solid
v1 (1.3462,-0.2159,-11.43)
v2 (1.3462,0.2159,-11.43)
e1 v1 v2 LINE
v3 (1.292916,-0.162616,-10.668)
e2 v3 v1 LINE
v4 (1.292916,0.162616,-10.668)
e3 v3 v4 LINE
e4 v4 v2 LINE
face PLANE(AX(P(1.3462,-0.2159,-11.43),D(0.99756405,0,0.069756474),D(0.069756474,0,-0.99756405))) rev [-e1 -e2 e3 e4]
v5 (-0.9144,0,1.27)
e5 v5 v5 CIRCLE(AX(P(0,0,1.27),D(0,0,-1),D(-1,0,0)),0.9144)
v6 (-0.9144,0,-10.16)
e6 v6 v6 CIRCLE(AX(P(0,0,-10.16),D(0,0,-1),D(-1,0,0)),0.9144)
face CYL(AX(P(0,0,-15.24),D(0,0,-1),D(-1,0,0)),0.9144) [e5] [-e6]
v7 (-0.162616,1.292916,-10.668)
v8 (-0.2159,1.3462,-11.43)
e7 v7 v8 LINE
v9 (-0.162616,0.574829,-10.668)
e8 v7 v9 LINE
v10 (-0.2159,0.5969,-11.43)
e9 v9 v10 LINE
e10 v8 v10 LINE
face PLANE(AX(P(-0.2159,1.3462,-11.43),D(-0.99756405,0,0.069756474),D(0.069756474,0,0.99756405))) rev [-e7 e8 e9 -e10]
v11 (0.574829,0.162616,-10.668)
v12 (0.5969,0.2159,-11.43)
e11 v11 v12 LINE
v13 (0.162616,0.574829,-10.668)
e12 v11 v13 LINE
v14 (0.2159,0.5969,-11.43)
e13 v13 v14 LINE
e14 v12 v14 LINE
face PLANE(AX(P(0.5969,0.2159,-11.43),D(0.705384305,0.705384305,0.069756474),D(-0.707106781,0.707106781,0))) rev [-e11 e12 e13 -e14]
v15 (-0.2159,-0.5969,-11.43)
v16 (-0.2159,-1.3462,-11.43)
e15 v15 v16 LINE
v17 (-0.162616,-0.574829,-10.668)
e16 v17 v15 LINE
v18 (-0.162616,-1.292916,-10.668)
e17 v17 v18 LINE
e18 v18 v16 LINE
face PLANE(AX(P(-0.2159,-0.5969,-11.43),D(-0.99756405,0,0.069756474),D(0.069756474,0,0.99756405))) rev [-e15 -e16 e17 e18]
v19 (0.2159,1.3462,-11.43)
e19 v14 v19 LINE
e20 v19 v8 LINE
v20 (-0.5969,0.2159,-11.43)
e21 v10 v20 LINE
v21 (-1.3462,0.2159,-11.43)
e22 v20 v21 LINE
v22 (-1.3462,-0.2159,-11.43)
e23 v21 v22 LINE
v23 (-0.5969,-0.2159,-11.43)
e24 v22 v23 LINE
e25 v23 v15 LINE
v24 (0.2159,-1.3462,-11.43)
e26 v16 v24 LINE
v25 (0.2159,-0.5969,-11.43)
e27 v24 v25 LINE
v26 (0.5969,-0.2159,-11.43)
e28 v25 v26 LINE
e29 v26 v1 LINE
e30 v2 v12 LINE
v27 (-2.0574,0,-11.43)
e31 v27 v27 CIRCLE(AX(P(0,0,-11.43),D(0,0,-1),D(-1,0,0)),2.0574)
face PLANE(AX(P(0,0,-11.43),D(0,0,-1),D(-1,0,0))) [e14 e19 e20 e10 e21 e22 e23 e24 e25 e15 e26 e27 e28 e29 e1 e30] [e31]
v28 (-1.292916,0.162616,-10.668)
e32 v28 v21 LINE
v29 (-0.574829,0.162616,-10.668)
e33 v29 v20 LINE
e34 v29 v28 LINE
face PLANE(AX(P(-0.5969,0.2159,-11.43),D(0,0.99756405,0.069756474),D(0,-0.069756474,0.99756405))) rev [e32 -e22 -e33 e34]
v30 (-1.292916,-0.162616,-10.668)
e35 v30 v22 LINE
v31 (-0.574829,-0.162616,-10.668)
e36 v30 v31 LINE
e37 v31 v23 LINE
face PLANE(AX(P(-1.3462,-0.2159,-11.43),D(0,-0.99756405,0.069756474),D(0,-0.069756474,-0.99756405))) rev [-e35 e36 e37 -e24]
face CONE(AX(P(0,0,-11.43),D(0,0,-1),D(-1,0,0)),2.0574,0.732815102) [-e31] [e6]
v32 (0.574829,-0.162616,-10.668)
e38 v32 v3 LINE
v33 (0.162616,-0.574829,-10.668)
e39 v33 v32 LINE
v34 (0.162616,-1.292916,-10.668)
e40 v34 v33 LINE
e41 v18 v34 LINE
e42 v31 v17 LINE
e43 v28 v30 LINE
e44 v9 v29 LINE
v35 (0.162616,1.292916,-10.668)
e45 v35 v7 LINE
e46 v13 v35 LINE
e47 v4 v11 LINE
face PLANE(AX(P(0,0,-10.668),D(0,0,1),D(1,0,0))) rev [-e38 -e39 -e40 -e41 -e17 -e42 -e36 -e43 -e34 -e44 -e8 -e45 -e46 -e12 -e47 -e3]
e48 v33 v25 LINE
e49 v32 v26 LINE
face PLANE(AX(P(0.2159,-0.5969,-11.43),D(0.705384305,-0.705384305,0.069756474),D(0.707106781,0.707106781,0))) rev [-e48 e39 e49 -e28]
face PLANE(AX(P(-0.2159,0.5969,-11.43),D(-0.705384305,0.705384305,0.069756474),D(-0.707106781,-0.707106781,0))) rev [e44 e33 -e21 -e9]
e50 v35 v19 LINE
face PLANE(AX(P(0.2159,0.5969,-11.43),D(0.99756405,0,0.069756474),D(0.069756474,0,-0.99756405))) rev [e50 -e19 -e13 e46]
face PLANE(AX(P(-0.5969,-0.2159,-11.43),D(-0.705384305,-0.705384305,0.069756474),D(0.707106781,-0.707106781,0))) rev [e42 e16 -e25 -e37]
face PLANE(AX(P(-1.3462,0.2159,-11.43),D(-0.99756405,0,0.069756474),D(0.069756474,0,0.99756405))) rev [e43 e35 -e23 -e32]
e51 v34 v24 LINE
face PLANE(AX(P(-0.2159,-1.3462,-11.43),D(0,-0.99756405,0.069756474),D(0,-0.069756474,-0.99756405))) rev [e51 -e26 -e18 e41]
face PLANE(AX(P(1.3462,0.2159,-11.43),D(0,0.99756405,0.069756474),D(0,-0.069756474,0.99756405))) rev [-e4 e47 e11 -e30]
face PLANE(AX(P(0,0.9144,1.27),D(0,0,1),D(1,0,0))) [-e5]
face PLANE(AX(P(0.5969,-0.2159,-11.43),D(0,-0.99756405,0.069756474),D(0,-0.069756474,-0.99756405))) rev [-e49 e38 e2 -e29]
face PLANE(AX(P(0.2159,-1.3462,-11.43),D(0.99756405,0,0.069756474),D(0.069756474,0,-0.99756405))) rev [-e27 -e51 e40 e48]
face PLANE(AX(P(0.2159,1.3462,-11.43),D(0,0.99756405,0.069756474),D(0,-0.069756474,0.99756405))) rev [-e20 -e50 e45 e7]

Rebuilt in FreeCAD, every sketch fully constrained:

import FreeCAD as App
import Part
import Sketcher
from FreeCAD import Vector
Q = App.Units.Quantity


def faces_at(feature, points):
    """Names of the faces that lie closest to the given points."""
    faces = feature.Shape.Faces
    near = lambda p: min(range(len(faces)), key=lambda i: faces[i].distToShape(Part.Vertex(*p))[0])
    return sorted({f"Face{near(p) + 1}" for p in points})


def add_polygon(sketch, points):
    """Adds a closed chain of lines whose ends are joined by coincident constraints."""
    first, n = sketch.GeometryCount, len(points)
    for a, b in zip(points, points[1:] + points[:1]):
        sketch.addGeometry(Part.LineSegment(App.Vector(*a, 0), App.Vector(*b, 0)), False)
    for i in range(n):
        sketch.addConstraint(Sketcher.Constraint("Coincident", first + i, 2, first + (i + 1) % n, 1))

doc = App.newDocument("Part")
body = doc.addObject("PartDesign::Body", "Body")

# Sketch on YZ plane
sketch1 = doc.addObject("Sketcher::SketchObject", "Sketch")
body.addObject(sketch1)
sketch1.AttachmentSupport = (doc.YZ_Plane, [""])
sketch1.MapMode = "FlatFace"
add_polygon(sketch1, [(0, -11.4), (2.1, -11.4), (0.9, -10.2), (0.9, 1.3), (0, 1.3)])  # lines 0-4
sketch1.addConstraint(Sketcher.Constraint("Horizontal", 0))
sketch1.addConstraint(Sketcher.Constraint("Vertical", 2))
sketch1.addConstraint(Sketcher.Constraint("Horizontal", 3))
sketch1.addConstraint(Sketcher.Constraint("Vertical", 4))
sketch1.addConstraint(Sketcher.Constraint("PointOnObject", 3, 2, -2))
sketch1.addConstraint(Sketcher.Constraint("DistanceY", 4, 2, 4, 1, Q("0.5 in")))
sketch1.addConstraint(Sketcher.Constraint("DistanceY", 2, 1, 2, 2, Q("0.45 in")))
sketch1.addConstraint(Sketcher.Constraint("DistanceY", 1, 2, -1, 1, Q("0.4 in")))
sketch1.addConstraint(Sketcher.Constraint("DistanceX", 0, 1, 0, 2, Q("0.081 in")))
sketch1.addConstraint(Sketcher.Constraint("DistanceX", 3, 2, 3, 1, Q("0.036 in")))
revolution = doc.addObject("PartDesign::Revolution", "Revolution")
body.addObject(revolution)
revolution.Profile = sketch1
revolution.ReferenceAxis = (sketch1, ["V_Axis"])
revolution.Angle = 360
body2 = doc.addObject("PartDesign::Body", "Body001")

# Sketch on XY plane
sketch2 = doc.addObject("Sketcher::SketchObject", "Sketch001")
body2.addObject(sketch2)
sketch2.AttachmentSupport = (doc.getObject("XY_Plane001"), [""])
sketch2.MapMode = "FlatFace"
sketch2.AttachmentOffset = App.Placement(Vector(0, 0, -0.45 * 25.4), App.Rotation())
add_polygon(sketch2, [(1.35, -0.22), (1.35, 0.22), (0.6, 0.22), (0.22, 0.6), (0.22, 1.35), (-0.22, 1.35), (-0.22, 0.6), (-0.6, 0.22), (-1.35, 0.22), (-1.35, -0.22), (-0.6, -0.22), (-0.22, -0.6), (-0.22, -1.35), (0.22, -1.35), (0.22, -0.6), (0.6, -0.22)])  # lines 0-15
sketch2.addConstraint(Sketcher.Constraint("Vertical", 0))
sketch2.addConstraint(Sketcher.Constraint("Horizontal", 1))
sketch2.addConstraint(Sketcher.Constraint("Vertical", 3))
sketch2.addConstraint(Sketcher.Constraint("Horizontal", 4))
sketch2.addConstraint(Sketcher.Constraint("Vertical", 5))
sketch2.addConstraint(Sketcher.Constraint("Horizontal", 7))
sketch2.addConstraint(Sketcher.Constraint("Vertical", 8))
sketch2.addConstraint(Sketcher.Constraint("Horizontal", 9))
sketch2.addConstraint(Sketcher.Constraint("Vertical", 11))
sketch2.addConstraint(Sketcher.Constraint("Horizontal", 12))
sketch2.addConstraint(Sketcher.Constraint("Vertical", 13))
sketch2.addConstraint(Sketcher.Constraint("Horizontal", 15))
sketch2.addConstraint(Sketcher.Constraint("Symmetric", 0, 2, 8, 2, -1, 1))
sketch2.addConstraint(Sketcher.Constraint("Symmetric", 2, 2, 10, 2, -1, 1))
sketch2.addConstraint(Sketcher.Constraint("Symmetric", 4, 2, 12, 2, -1, 1))
sketch2.addConstraint(Sketcher.Constraint("Symmetric", 6, 2, 14, 2, -1, 1))
sketch2.addConstraint(Sketcher.Constraint("Symmetric", 2, 2, 5, 2, -2))
sketch2.addConstraint(Sketcher.Constraint("Symmetric", 1, 2, 6, 2, -2))
sketch2.addConstraint(Sketcher.Constraint("Perpendicular", 2, 6))
sketch2.addConstraint(Sketcher.Constraint("Perpendicular", 6, 10))
sketch2.addConstraint(Sketcher.Constraint("Perpendicular", 10, 14))
sketch2.addConstraint(Sketcher.Constraint("Equal", 12, 0))
sketch2.addConstraint(Sketcher.Constraint("Equal", 15, 3))
sketch2.addConstraint(Sketcher.Constraint("DistanceX", 4, 2, 4, 1, Q("0.017 in")))
sketch2.addConstraint(Sketcher.Constraint("DistanceX", 1, 2, 1, 1, Q("0.0295 in")))
sketch2.addConstraint(Sketcher.Constraint("DistanceX", -1, 1, 0, 2, Q("0.053 in")))
pad1 = doc.addObject("PartDesign::Pad", "Pad")
body2.addObject(pad1)
pad1.Profile = sketch2
pad1.Length = Q("0.03 in")
doc.recompute()

datumplane = doc.addObject("PartDesign::Plane", "DatumPlane")
body2.addObject(datumplane)
datumplane.AttachmentSupport = (doc.getObject("XY_Plane001"), [""])
datumplane.MapMode = "FlatFace"
datumplane.AttachmentOffset = App.Placement(Vector(0, 0, -0.45 * 25.4), App.Rotation())
draft = doc.addObject("PartDesign::Draft", "Draft")
body2.addObject(draft)
draft.Base = (pad1, faces_at(pad1, [
    (1.346, 0, -11.049),
    (0.972, 0.216, -11.049),
    (0.406, 0.406, -11.049),
    (0.216, 0.972, -11.049),
    (0, 1.346, -11.049),
    (-0.216, 0.972, -11.049),
    (-0.406, 0.406, -11.049),
    (-0.972, 0.216, -11.049),
    (-1.346, 0, -11.049),
    (-0.972, -0.216, -11.049),
    (-0.406, -0.406, -11.049),
    (-0.216, -0.972, -11.049),
    (0, -1.346, -11.049),
    (0.216, -0.972, -11.049),
    (0.406, -0.406, -11.049),
    (0.972, -0.216, -11.049),
]))
draft.NeutralPlane = (datumplane, [""])
draft.Angle = 4
draft.Reversed = False
doc.recompute()

boolean = doc.addObject("PartDesign::Boolean", "Boolean")
body.addObject(boolean)
boolean.Type = "Cut"
boolean.addObjects([body2])

doc.recompute()
